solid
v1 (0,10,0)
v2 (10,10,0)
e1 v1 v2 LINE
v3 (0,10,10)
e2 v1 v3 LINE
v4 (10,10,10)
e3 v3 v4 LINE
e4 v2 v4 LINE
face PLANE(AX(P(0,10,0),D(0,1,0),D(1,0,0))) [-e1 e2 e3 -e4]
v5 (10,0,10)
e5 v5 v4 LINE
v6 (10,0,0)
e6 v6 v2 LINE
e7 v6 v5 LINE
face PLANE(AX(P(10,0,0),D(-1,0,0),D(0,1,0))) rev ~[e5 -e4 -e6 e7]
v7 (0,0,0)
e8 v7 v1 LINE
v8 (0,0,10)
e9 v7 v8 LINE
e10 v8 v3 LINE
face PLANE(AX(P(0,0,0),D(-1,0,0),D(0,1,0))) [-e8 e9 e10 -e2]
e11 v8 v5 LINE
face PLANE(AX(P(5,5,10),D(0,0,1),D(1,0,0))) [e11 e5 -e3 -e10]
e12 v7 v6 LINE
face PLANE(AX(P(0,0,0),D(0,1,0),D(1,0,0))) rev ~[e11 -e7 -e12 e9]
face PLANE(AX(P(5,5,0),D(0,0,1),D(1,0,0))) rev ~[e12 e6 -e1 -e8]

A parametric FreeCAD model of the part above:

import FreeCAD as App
import Part
import Sketcher
from FreeCAD import Vector
Q = App.Units.Quantity

doc = App.newDocument("Part")
params = doc.addObject("Spreadsheet::Sheet", "Params")
for row, (alias, value) in enumerate([
    ("sketch1_width", "10 mm"),
    ("pad1_length", "10 mm"),
], start=1):
    params.set(f"A{row}", alias)
    params.set(f"B{row}", "=" + value)
    params.setAlias(f"B{row}", alias)

body = doc.addObject("PartDesign::Body", "Body")

sketch1 = body.newObject("Sketcher::SketchObject", "Sketch")
sketch1.AttachmentSupport = (doc.getObject("XY_Plane"), [""])
sketch1.MapMode = "FlatFace"
sketch1.addGeometry([
    Part.LineSegment(Vector(0, 10, 0), Vector(0, 0, 0)),
    Part.LineSegment(Vector(0, 0, 0), Vector(10, 0, 0)),
    Part.LineSegment(Vector(10, 0, 0), Vector(10, 10, 0)),
    Part.LineSegment(Vector(10, 10, 0), Vector(0, 10, 0)),
], False)
sketch1.addConstraint([
    Sketcher.Constraint("Coincident", 0, 2, 1, 1),
    Sketcher.Constraint("Coincident", 1, 2, 2, 1),
    Sketcher.Constraint("Coincident", 2, 2, 3, 1),
    Sketcher.Constraint("Coincident", 3, 2, 0, 1),
    Sketcher.Constraint("Vertical", 0),
    Sketcher.Constraint("Horizontal", 1),
    Sketcher.Constraint("Vertical", 2),
    Sketcher.Constraint("Horizontal", 3),
    Sketcher.Constraint("Coincident", 0, 2, -1, 1),
    Sketcher.Constraint("Equal", 3, 0),
    Sketcher.Constraint("DistanceX", 1, 1, 1, 2, Q("10 mm")),
])
sketch1.setExpression("Constraints[10]", "Params.sketch1_width")
pad1 = body.newObject("PartDesign::Pad", "Pad")
pad1.Profile = sketch1
pad1.setExpression("Length", "Params.pad1_length")

doc.recompute()
